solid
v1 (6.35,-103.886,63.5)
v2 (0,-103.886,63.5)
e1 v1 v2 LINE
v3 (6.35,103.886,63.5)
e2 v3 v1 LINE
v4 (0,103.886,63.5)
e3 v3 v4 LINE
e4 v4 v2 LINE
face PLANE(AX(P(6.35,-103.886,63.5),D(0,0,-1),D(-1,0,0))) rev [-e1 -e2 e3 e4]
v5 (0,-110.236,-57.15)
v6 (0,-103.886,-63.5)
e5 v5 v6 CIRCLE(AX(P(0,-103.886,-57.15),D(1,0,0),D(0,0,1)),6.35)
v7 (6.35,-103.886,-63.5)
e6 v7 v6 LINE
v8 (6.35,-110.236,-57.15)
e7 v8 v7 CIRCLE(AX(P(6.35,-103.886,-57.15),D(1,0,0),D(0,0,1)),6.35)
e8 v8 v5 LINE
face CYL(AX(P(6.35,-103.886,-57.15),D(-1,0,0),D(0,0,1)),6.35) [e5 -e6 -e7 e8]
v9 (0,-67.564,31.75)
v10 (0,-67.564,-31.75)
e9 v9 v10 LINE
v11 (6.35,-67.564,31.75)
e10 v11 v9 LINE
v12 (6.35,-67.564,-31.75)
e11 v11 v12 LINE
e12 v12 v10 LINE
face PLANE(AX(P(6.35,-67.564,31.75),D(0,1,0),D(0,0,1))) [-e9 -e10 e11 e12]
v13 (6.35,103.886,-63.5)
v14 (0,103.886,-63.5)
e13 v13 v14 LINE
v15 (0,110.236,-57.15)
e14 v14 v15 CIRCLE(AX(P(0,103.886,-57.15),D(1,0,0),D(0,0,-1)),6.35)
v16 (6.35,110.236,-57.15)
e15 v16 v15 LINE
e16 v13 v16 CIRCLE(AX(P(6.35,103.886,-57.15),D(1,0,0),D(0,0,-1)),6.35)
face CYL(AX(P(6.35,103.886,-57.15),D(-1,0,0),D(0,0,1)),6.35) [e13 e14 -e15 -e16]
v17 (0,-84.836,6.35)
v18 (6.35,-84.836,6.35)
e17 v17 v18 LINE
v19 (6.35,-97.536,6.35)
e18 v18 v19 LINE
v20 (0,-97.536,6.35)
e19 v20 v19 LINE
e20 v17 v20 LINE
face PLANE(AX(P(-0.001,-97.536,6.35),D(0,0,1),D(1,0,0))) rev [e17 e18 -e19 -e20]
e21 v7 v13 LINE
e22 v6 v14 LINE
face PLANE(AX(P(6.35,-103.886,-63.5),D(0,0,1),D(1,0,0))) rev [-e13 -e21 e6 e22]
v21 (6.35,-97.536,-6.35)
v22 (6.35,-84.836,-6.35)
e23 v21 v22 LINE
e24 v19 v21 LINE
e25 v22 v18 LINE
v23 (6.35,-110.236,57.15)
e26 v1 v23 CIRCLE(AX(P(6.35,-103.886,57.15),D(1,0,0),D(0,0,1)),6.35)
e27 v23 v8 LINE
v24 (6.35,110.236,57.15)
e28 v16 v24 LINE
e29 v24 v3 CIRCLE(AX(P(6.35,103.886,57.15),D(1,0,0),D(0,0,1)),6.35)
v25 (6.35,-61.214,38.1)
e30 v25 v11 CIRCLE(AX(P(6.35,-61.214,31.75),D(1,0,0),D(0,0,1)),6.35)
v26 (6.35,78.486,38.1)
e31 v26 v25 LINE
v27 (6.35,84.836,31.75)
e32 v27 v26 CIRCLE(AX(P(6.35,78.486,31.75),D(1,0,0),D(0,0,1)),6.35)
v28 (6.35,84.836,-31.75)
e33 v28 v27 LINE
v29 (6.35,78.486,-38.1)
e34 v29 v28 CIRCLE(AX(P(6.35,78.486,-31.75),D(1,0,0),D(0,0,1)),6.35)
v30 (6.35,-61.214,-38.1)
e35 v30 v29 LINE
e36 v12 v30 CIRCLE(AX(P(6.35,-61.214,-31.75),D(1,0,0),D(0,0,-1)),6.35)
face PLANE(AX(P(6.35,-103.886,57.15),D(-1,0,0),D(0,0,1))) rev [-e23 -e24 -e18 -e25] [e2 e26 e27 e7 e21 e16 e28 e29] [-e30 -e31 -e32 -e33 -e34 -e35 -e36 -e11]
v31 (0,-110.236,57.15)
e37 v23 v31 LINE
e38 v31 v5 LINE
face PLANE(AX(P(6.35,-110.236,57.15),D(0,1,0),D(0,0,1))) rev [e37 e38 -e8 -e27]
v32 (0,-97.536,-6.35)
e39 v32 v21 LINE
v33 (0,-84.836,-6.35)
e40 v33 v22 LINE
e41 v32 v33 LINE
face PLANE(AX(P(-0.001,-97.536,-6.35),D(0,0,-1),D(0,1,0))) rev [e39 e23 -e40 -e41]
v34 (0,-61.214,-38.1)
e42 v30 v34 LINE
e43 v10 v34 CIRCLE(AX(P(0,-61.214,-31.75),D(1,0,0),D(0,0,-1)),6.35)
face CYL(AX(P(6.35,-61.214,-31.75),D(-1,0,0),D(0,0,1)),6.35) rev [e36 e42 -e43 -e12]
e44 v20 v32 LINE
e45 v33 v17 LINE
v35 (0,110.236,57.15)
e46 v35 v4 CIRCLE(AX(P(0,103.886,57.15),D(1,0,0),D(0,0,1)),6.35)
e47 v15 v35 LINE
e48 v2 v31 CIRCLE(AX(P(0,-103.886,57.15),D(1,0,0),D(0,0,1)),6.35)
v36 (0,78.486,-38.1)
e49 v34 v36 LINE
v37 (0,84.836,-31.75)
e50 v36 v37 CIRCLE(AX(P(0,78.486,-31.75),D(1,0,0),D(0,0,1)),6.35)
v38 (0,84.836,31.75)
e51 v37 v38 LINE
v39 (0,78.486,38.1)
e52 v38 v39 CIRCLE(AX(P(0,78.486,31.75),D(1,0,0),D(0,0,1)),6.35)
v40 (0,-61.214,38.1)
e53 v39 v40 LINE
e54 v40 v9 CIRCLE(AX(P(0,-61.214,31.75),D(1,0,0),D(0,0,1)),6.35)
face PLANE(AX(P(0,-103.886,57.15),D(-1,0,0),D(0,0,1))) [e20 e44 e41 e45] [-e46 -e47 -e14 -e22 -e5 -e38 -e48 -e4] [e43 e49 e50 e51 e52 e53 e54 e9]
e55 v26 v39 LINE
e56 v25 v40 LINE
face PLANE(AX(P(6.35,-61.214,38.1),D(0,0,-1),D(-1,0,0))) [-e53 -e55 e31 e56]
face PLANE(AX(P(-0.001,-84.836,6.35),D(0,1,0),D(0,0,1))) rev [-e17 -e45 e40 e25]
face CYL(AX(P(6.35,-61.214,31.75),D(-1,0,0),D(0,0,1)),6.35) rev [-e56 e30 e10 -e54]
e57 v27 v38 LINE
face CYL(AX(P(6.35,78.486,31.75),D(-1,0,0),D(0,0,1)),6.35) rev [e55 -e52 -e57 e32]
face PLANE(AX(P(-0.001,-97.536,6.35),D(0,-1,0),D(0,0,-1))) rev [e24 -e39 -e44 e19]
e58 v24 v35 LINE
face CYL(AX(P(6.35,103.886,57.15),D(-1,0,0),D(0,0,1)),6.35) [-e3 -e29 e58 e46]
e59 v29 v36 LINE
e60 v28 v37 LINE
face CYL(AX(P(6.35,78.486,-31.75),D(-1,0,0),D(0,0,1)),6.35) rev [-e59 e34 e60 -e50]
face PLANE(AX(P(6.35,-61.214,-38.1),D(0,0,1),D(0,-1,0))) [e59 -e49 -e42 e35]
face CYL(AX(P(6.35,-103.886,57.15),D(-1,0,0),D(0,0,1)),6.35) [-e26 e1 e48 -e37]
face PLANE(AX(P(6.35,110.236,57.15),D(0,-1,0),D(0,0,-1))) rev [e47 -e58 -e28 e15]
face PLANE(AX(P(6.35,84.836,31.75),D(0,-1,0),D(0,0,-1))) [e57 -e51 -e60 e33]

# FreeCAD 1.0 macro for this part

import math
import FreeCAD as App
import Part
import Sketcher

V = App.Vector
Q = App.Units.Quantity

doc = App.newDocument("Part")
params = doc.addObject("Spreadsheet::Sheet", "Params")
for row, (alias, value) in enumerate([
    ("sketch1_radius", "0.25 in"),
    ("sketch1_width", "5.5 in"),
    ("sketch1_height", "4.5 in"),
    ("sketch1_height2", "2.5 in"),
    ("sketch1_width2", "8.18 in"),
    ("pad1_length", "0.25 in"),
    ("sketch2_width", "0.5 in"),
], start=1):
    params.set(f"A{row}", alias)
    params.set(f"B{row}", "=" + value)
    params.setAlias(f"B{row}", alias)

body = doc.addObject("PartDesign::Body", "Body")

sketch1 = body.newObject("Sketcher::SketchObject", "Sketch")
sketch1.AttachmentSupport = (doc.getObject("YZ_Plane"), [""])
sketch1.MapMode = "FlatFace"
sketch1.addGeometry([
    Part.LineSegment(V(-110, 57, 0), V(-110, -57, 0)),
    Part.ArcOfCircle(Part.Circle(V(-104, -57, 0), V(0, 0, 1), 6), math.radians(180), math.radians(270)),
    Part.LineSegment(V(-104, -64, 0), V(104, -64, 0)),
    Part.ArcOfCircle(Part.Circle(V(104, -57, 0), V(0, 0, 1), 6), math.radians(-90), math.radians(0)),
    Part.LineSegment(V(110, -57, 0), V(110, 57, 0)),
    Part.ArcOfCircle(Part.Circle(V(104, 57, 0), V(0, 0, 1), 6), math.radians(0), math.radians(90)),
    Part.LineSegment(V(104, 64, 0), V(-104, 64, 0)),
    Part.ArcOfCircle(Part.Circle(V(-104, 57, 0), V(0, 0, 1), 6), math.radians(90), math.radians(180)),
    Part.LineSegment(V(-68, -32, 0), V(-68, 32, 0)),
    Part.ArcOfCircle(Part.Circle(V(-61, 32, 0), V(0, 0, 1), 6), math.radians(90), math.radians(180)),
    Part.LineSegment(V(-61, 38, 0), V(78, 38, 0)),
    Part.ArcOfCircle(Part.Circle(V(78, 32, 0), V(0, 0, 1), 6), math.radians(0), math.radians(90)),
    Part.LineSegment(V(85, 32, 0), V(85, -32, 0)),
    Part.ArcOfCircle(Part.Circle(V(78, -32, 0), V(0, 0, 1), 6), math.radians(-90), math.radians(0)),
    Part.LineSegment(V(78, -38, 0), V(-61, -38, 0)),
    Part.ArcOfCircle(Part.Circle(V(-61, -32, 0), V(0, 0, 1), 6), math.radians(180), math.radians(270)),
], False)
sketch1.addConstraint([
    Sketcher.Constraint("Tangent", 0, 2, 1, 1),
    Sketcher.Constraint("Tangent", 1, 2, 2, 1),
    Sketcher.Constraint("Tangent", 2, 2, 3, 1),
    Sketcher.Constraint("Tangent", 3, 2, 4, 1),
    Sketcher.Constraint("Tangent", 4, 2, 5, 1),
    Sketcher.Constraint("Tangent", 5, 2, 6, 1),
    Sketcher.Constraint("Tangent", 6, 2, 7, 1),
    Sketcher.Constraint("Tangent", 7, 2, 0, 1),
    Sketcher.Constraint("Tangent", 8, 2, 9, 2),
    Sketcher.Constraint("Tangent", 9, 1, 10, 1),
    Sketcher.Constraint("Tangent", 10, 2, 11, 2),
    Sketcher.Constraint("Tangent", 11, 1, 12, 1),
    Sketcher.Constraint("Tangent", 12, 2, 13, 2),
    Sketcher.Constraint("Tangent", 13, 1, 14, 1),
    Sketcher.Constraint("Tangent", 14, 2, 15, 2),
    Sketcher.Constraint("Tangent", 15, 1, 8, 1),
    Sketcher.Constraint("Vertical", 0),
    Sketcher.Constraint("Horizontal", 2),
    Sketcher.Constraint("Vertical", 4),
    Sketcher.Constraint("Horizontal", 6),
    Sketcher.Constraint("Vertical", 8),
    Sketcher.Constraint("Horizontal", 10),
    Sketcher.Constraint("Vertical", 12),
    Sketcher.Constraint("Horizontal", 14),
    Sketcher.Constraint("Equal", 1, 3),
    Sketcher.Constraint("Equal", 3, 5),
    Sketcher.Constraint("Equal", 5, 7),
    Sketcher.Constraint("Equal", 7, 9),
    Sketcher.Constraint("Equal", 9, 11),
    Sketcher.Constraint("Equal", 11, 13),
    Sketcher.Constraint("Equal", 13, 15),
    Sketcher.Constraint("Symmetric", 1, 3, 5, 3, -1, 1),
    Sketcher.Constraint("Radius", 1, Q("0.25 in")),
    Sketcher.Constraint("DistanceX", 10, 1, 10, 2, Q("5.5 in")),
    Sketcher.Constraint("DistanceY", 0, 2, 0, 1, Q("4.5 in")),
    Sketcher.Constraint("DistanceY", 8, 1, 8, 2, Q("2.5 in")),
    Sketcher.Constraint("DistanceY", 9, 3, 7, 3, Q("1 in")),
    Sketcher.Constraint("DistanceX", 11, 3, 5, 3, Q("1 in")),
    Sketcher.Constraint("DistanceX", 2, 1, 2, 2, Q("8.18 in")),
])
sketch1.setExpression("Constraints[32]", "Params.sketch1_radius")
sketch1.setExpression("Constraints[33]", "Params.sketch1_width")
sketch1.setExpression("Constraints[34]", "Params.sketch1_height")
sketch1.setExpression("Constraints[35]", "Params.sketch1_height2")
sketch1.setExpression("Constraints[38]", "Params.sketch1_width2")
pad1 = body.newObject("PartDesign::Pad", "Pad")
pad1.Profile = sketch1
pad1.setExpression("Length", "Params.pad1_length")

sketch2 = body.newObject("Sketcher::SketchObject", "Sketch001")
sketch2.AttachmentSupport = (doc.getObject("YZ_Plane"), [""])
sketch2.MapMode = "FlatFace"
sketch2.AttachmentOffset = App.Placement(V(0, 0, 0.25 * 25.4), App.Rotation())
sketch2.addGeometry([
    Part.LineSegment(V(-85, 6, 0), V(-98, 6, 0)),
    Part.LineSegment(V(-98, 6, 0), V(-98, -6, 0)),
    Part.LineSegment(V(-98, -6, 0), V(-85, -6, 0)),
    Part.LineSegment(V(-85, -6, 0), V(-85, 6, 0)),
], False)
sketch2.addConstraint([
    Sketcher.Constraint("Coincident", 0, 2, 1, 1),
    Sketcher.Constraint("Coincident", 1, 2, 2, 1),
    Sketcher.Constraint("Coincident", 2, 2, 3, 1),
    Sketcher.Constraint("Coincident", 3, 2, 0, 1),
    Sketcher.Constraint("Horizontal", 0),
    Sketcher.Constraint("Vertical", 1),
    Sketcher.Constraint("Horizontal", 2),
    Sketcher.Constraint("Vertical", 3),
    Sketcher.Constraint("Equal", 2, 1),
    Sketcher.Constraint("DistanceX", 0, 2, 0, 1, Q("0.5 in")),
    Sketcher.Constraint("DistanceX", 0, 2, -1, 1, Q("3.84 in")),
    Sketcher.Constraint("DistanceY", -1, 1, 0, 2, Q("0.25 in")),
])
sketch2.setExpression("Constraints[9]", "Params.sketch2_width")
pocket1 = body.newObject("PartDesign::Pocket", "Pocket")
pocket1.Profile = sketch2
pocket1.Type = "UpToFirst"

doc.recompute()
